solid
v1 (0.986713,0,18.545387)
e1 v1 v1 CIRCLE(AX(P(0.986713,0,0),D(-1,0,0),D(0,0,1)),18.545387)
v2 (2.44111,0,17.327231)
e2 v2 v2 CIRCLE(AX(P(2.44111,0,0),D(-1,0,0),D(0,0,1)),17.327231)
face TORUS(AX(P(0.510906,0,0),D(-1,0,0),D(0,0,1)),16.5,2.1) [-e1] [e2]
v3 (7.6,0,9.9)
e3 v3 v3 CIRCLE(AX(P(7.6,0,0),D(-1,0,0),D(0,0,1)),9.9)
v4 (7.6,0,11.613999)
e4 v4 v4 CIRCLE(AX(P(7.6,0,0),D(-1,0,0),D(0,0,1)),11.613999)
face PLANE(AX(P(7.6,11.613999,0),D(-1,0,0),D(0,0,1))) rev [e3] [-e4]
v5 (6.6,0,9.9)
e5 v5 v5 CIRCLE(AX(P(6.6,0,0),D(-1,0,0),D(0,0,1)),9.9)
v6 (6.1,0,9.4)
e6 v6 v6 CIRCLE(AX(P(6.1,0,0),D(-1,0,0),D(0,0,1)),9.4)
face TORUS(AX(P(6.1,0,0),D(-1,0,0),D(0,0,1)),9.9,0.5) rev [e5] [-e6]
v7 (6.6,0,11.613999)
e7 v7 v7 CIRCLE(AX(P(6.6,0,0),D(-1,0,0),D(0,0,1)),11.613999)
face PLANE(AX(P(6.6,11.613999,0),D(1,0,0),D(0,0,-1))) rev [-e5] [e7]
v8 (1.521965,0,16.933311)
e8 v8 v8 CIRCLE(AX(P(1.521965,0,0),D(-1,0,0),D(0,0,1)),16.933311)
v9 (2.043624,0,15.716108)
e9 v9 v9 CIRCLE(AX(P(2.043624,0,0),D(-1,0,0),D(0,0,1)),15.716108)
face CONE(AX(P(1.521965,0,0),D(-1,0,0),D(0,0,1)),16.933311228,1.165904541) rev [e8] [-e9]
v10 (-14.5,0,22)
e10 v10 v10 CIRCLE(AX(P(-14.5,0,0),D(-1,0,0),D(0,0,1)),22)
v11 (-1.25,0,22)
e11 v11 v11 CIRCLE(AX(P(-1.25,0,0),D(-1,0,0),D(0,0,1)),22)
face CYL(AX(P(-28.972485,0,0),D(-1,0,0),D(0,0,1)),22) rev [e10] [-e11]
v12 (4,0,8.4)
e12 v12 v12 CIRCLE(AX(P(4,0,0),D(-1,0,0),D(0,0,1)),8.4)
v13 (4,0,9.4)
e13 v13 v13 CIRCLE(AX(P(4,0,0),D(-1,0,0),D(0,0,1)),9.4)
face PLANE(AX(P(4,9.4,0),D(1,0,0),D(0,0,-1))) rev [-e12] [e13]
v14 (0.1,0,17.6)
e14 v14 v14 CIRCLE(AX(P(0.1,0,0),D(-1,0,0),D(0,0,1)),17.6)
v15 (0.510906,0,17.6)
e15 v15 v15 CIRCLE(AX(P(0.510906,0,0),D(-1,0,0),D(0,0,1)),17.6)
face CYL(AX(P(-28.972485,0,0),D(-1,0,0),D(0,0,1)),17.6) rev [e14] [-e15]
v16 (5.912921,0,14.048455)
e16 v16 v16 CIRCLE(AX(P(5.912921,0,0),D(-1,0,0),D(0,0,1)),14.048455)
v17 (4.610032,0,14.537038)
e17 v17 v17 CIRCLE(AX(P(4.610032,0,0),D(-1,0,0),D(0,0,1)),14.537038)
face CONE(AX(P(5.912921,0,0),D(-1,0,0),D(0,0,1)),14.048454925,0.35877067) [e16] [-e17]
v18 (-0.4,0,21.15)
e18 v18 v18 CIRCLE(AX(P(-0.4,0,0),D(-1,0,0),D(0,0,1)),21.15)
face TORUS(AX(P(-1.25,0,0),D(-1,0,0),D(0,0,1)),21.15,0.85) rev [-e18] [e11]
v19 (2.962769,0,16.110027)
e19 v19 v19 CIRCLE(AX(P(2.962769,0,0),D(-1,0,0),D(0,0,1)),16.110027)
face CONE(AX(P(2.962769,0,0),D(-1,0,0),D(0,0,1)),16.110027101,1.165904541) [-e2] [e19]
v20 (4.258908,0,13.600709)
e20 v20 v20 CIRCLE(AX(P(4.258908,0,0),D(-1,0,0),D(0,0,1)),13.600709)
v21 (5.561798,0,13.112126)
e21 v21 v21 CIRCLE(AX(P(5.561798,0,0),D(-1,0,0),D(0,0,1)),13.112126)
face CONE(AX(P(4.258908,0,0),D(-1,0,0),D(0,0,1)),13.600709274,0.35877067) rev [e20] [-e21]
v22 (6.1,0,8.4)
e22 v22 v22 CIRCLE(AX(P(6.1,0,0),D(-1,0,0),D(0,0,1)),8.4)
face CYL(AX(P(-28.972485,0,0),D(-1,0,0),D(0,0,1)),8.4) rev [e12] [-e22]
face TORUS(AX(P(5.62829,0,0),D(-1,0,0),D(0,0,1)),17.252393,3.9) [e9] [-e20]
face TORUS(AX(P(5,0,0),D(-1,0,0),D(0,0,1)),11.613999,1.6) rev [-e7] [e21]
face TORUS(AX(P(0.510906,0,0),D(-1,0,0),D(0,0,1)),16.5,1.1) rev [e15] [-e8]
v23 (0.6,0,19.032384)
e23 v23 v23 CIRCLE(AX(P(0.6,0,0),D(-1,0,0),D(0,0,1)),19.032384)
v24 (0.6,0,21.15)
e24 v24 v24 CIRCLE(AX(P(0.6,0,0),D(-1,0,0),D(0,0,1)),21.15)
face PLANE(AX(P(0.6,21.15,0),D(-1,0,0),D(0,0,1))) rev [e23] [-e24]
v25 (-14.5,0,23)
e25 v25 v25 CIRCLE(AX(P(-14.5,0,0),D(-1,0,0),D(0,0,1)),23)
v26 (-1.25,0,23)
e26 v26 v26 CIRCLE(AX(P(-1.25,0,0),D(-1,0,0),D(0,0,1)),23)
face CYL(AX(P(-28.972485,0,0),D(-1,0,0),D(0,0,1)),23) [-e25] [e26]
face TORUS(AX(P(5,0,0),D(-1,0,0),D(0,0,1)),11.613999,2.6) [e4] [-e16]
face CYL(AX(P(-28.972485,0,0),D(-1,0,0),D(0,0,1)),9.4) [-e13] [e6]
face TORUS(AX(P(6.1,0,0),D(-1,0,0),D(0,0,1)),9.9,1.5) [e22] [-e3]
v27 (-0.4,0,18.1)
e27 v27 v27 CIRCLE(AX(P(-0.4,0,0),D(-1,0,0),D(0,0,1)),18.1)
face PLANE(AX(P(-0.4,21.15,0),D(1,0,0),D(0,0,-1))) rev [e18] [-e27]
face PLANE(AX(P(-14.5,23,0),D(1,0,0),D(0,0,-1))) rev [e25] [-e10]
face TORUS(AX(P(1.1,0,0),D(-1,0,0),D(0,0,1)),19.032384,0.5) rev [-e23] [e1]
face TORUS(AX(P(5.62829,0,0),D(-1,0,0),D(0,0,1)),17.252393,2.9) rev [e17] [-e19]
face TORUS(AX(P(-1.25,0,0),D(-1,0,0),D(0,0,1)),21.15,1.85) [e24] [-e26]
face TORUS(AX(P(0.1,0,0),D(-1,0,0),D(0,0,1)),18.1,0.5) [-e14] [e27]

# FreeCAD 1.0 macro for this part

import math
import FreeCAD as App
import Part
import Sketcher

V = App.Vector

doc = App.newDocument("Part")
body = doc.addObject("PartDesign::Body", "Body")

sketch1 = body.newObject("Sketcher::SketchObject", "Sketch")
sketch1.AttachmentSupport = (doc.getObject("XY_Plane"), [""])
sketch1.MapMode = "FlatFace"
sketch1.addGeometry([
    Part.LineSegment(V(-14.5, 22, 0), V(-1.25, 22, 0)),
    Part.ArcOfCircle(Part.Circle(V(-1.25, 21.15, 0), V(0, 0, 1), 0.85), math.radians(0), math.radians(90)),
    Part.LineSegment(V(-0.4, 21.15, 0), V(-0.4, 18.1, 0)),
    Part.ArcOfCircle(Part.Circle(V(0.1, 18.1, 0), V(0, 0, 1), 0.5), math.radians(180), math.radians(270)),
    Part.LineSegment(V(0.1, 17.6, 0), V(0.51, 17.6, 0)),
    Part.ArcOfCircle(Part.Circle(V(0.51, 16.5, 0), V(0, 0, 1), 1.1), math.radians(23), math.radians(90)),
    Part.LineSegment(V(1.52, 16.93, 0), V(2.04, 15.72, 0)),
    Part.ArcOfCircle(Part.Circle(V(5.63, 17.25, 0), V(0, 0, 1), 3.9), math.radians(-157), math.radians(-111)),
    Part.LineSegment(V(4.26, 13.6, 0), V(5.56, 13.11, 0)),
    Part.ArcOfCircle(Part.Circle(V(5, 11.61, 0), V(0, 0, 1), 1.6), math.radians(0), math.radians(69)),
    Part.LineSegment(V(6.6, 11.61, 0), V(6.6, 9.9, 0)),
    Part.ArcOfCircle(Part.Circle(V(6.1, 9.9, 0), V(0, 0, 1), 0.5), math.radians(-90), math.radians(0)),
    Part.LineSegment(V(6.1, 9.4, 0), V(4, 9.4, 0)),
    Part.LineSegment(V(4, 9.4, 0), V(4, 8.4, 0)),
    Part.LineSegment(V(4, 8.4, 0), V(6.1, 8.4, 0)),
    Part.ArcOfCircle(Part.Circle(V(6.1, 9.9, 0), V(0, 0, 1), 1.5), math.radians(-90), math.radians(0)),
    Part.LineSegment(V(7.6, 9.9, 0), V(7.6, 11.61, 0)),
    Part.ArcOfCircle(Part.Circle(V(5, 11.61, 0), V(0, 0, 1), 2.6), math.radians(0), math.radians(69)),
    Part.LineSegment(V(5.91, 14.05, 0), V(4.61, 14.54, 0)),
    Part.ArcOfCircle(Part.Circle(V(5.63, 17.25, 0), V(0, 0, 1), 2.9), math.radians(-157), math.radians(-111)),
    Part.LineSegment(V(2.96, 16.11, 0), V(2.44, 17.33, 0)),
    Part.ArcOfCircle(Part.Circle(V(0.51, 16.5, 0), V(0, 0, 1), 2.1), math.radians(23), math.radians(77)),
    Part.ArcOfCircle(Part.Circle(V(1.1, 19.03, 0), V(0, 0, 1), 0.5), math.radians(-180), math.radians(-103)),
    Part.LineSegment(V(0.6, 19.03, 0), V(0.6, 21.15, 0)),
    Part.ArcOfCircle(Part.Circle(V(-1.25, 21.15, 0), V(0, 0, 1), 1.85), math.radians(0), math.radians(90)),
    Part.LineSegment(V(-1.25, 23, 0), V(-14.5, 23, 0)),
    Part.LineSegment(V(-14.5, 23, 0), V(-14.5, 22, 0)),
], False)
sketch1.addConstraint([
    Sketcher.Constraint("Tangent", 0, 2, 1, 2),
    Sketcher.Constraint("Tangent", 1, 1, 2, 1),
    Sketcher.Constraint("Tangent", 2, 2, 3, 1),
    Sketcher.Constraint("Tangent", 3, 2, 4, 1),
    Sketcher.Constraint("Tangent", 4, 2, 5, 2),
    Sketcher.Constraint("Tangent", 5, 1, 6, 1),
    Sketcher.Constraint("Tangent", 6, 2, 7, 1),
    Sketcher.Constraint("Tangent", 7, 2, 8, 1),
    Sketcher.Constraint("Tangent", 8, 2, 9, 2),
    Sketcher.Constraint("Tangent", 9, 1, 10, 1),
    Sketcher.Constraint("Tangent", 10, 2, 11, 2),
    Sketcher.Constraint("Tangent", 11, 1, 12, 1),
    Sketcher.Constraint("Coincident", 12, 2, 13, 1),
    Sketcher.Constraint("Coincident", 13, 2, 14, 1),
    Sketcher.Constraint("Tangent", 14, 2, 15, 1),
    Sketcher.Constraint("Tangent", 15, 2, 16, 1),
    Sketcher.Constraint("Tangent", 16, 2, 17, 1),
    Sketcher.Constraint("Tangent", 17, 2, 18, 1),
    Sketcher.Constraint("Tangent", 18, 2, 19, 2),
    Sketcher.Constraint("Tangent", 19, 1, 20, 1),
    Sketcher.Constraint("Tangent", 20, 2, 21, 1),
    Sketcher.Constraint("Tangent", 21, 2, 22, 2),
    Sketcher.Constraint("Tangent", 22, 1, 23, 1),
    Sketcher.Constraint("Tangent", 23, 2, 24, 1),
    Sketcher.Constraint("Tangent", 24, 2, 25, 1),
    Sketcher.Constraint("Coincident", 25, 2, 26, 1),
    Sketcher.Constraint("Coincident", 26, 2, 0, 1),
    Sketcher.Constraint("Horizontal", 0),
    Sketcher.Constraint("Vertical", 2),
    Sketcher.Constraint("Horizontal", 4),
    Sketcher.Constraint("Vertical", 10),
    Sketcher.Constraint("Horizontal", 12),
    Sketcher.Constraint("Vertical", 13),
    Sketcher.Constraint("Horizontal", 14),
    Sketcher.Constraint("Vertical", 16),
    Sketcher.Constraint("Vertical", 23),
    Sketcher.Constraint("Horizontal", 25),
    Sketcher.Constraint("Vertical", 26),
    Sketcher.Constraint("Coincident", 15, 3, 11, 3),
    Sketcher.Constraint("Coincident", 17, 3, 9, 3),
    Sketcher.Constraint("Coincident", 19, 3, 7, 3),
    Sketcher.Constraint("Coincident", 21, 3, 5, 3),
    Sketcher.Constraint("Coincident", 24, 3, 1, 3),
    Sketcher.Constraint("Equal", 3, 11),
    Sketcher.Constraint("Equal", 11, 22),
    Sketcher.Constraint("Parallel", 8, 18),
    Sketcher.Constraint("Parallel", 6, 20),
    Sketcher.Constraint("Equal", 13, 26),
    Sketcher.Constraint("Radius", 3, 0.5),
    Sketcher.Constraint("Radius", 5, 1.1),
    Sketcher.Constraint("Radius", 7, 3.9),
    Sketcher.Constraint("Radius", 9, 1.6),
    Sketcher.Constraint("Radius", 15, 1.5),
    Sketcher.Constraint("Radius", 1, 0.85),
    Sketcher.Constraint("DistanceX", 12, 2, 12, 1, 2.1),
    Sketcher.Constraint("DistanceX", -1, 1, 9, 3, 5.0),
    Sketcher.Constraint("DistanceY", -1, 1, 0, 2, 22.0),
    Sketcher.Constraint("DistanceX", 3, 3, 11, 3, 6.0),
    Sketcher.Constraint("DistanceX", 0, 1, 0, 2, 13.25),
    Sketcher.Constraint("DistanceY", 2, 2, 2, 1, 3.05),
    Sketcher.Constraint("DistanceY", -1, 1, 11, 3, 9.9),
    Sketcher.Constraint("DistanceY", 10, 2, 10, 1, 1.713999),
    Sketcher.Constraint("DistanceY", 7, 2, 6, 2, 2.115399),
    Sketcher.Constraint("DistanceX", 4, 1, 4, 2, 0.410906),
    Sketcher.Constraint("DistanceX", -1, 1, 7, 3, 5.62829),
])
revolution = body.newObject("PartDesign::Revolution", "Revolution")
revolution.Profile = sketch1
revolution.ReferenceAxis = (sketch1, ["H_Axis"])
revolution.Angle = 360

doc.recompute()
